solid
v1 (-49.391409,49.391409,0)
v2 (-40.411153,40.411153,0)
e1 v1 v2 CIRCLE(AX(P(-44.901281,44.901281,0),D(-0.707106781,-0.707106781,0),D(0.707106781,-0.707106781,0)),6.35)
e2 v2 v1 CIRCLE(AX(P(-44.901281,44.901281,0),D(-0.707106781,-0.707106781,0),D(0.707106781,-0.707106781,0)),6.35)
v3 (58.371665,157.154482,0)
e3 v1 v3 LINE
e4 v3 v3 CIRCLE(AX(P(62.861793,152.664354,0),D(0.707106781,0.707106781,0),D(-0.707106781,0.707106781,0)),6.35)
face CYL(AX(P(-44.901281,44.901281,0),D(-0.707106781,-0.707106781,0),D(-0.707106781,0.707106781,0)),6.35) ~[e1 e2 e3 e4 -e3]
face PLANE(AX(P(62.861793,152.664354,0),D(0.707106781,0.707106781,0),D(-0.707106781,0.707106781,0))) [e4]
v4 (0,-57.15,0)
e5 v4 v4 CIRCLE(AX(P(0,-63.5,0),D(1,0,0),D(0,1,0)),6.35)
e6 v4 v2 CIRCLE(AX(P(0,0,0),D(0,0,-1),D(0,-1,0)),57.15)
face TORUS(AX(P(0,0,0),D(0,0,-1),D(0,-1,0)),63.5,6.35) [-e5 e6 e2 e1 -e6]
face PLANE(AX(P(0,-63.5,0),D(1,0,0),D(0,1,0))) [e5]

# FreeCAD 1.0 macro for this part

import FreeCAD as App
import Part
import Sketcher

V = App.Vector
Q = App.Units.Quantity

doc = App.newDocument("Part")
body = doc.addObject("PartDesign::Body", "Body")

sketch1 = body.newObject("Sketcher::SketchObject", "Sketch")
sketch1.AttachmentSupport = (doc.getObject("YZ_Plane"), [""])
sketch1.MapMode = "FlatFace"
sketch1.addGeometry(Part.Circle(V(-63.5, 0, 0), V(0, 0, 1), 6.35), False)
sketch1.addConstraint(Sketcher.Constraint("PointOnObject", 0, 3, -1))
sketch1.addConstraint(Sketcher.Constraint("Diameter", 0, Q("0.5 in")))
sketch1.addConstraint(Sketcher.Constraint("DistanceX", 0, 3, -1, 1, Q("2.5 in")))
revolution = body.newObject("PartDesign::Revolution", "Revolution")
revolution.Profile = sketch1
revolution.ReferenceAxis = (sketch1, ["V_Axis"])
revolution.Angle = 135
revolution.Reversed = True

sketch2 = body.newObject("Sketcher::SketchObject", "Sketch001")
sketch2.Placement = App.Placement(V(0, 0, 0), App.Rotation(V(-0.707106781, 0.707106781, 0), V(0, 0, 0.999999999), V(0.707106781, 0.707106781, 0), "ZXY"))
sketch2.addGeometry(Part.Circle(V(63.5, 0, 0), V(0, 0, 1), 6.35), False)
sketch2.addConstraint(Sketcher.Constraint("PointOnObject", 0, 3, -1))
sketch2.addConstraint(Sketcher.Constraint("Diameter", 0, Q("0.5 in")))
sketch2.addConstraint(Sketcher.Constraint("DistanceX", -1, 1, 0, 3, Q("2.5 in")))
pad1 = body.newObject("PartDesign::Pad", "Pad")
pad1.Profile = sketch2
pad1.Length = Q("6 in")

doc.recompute()
